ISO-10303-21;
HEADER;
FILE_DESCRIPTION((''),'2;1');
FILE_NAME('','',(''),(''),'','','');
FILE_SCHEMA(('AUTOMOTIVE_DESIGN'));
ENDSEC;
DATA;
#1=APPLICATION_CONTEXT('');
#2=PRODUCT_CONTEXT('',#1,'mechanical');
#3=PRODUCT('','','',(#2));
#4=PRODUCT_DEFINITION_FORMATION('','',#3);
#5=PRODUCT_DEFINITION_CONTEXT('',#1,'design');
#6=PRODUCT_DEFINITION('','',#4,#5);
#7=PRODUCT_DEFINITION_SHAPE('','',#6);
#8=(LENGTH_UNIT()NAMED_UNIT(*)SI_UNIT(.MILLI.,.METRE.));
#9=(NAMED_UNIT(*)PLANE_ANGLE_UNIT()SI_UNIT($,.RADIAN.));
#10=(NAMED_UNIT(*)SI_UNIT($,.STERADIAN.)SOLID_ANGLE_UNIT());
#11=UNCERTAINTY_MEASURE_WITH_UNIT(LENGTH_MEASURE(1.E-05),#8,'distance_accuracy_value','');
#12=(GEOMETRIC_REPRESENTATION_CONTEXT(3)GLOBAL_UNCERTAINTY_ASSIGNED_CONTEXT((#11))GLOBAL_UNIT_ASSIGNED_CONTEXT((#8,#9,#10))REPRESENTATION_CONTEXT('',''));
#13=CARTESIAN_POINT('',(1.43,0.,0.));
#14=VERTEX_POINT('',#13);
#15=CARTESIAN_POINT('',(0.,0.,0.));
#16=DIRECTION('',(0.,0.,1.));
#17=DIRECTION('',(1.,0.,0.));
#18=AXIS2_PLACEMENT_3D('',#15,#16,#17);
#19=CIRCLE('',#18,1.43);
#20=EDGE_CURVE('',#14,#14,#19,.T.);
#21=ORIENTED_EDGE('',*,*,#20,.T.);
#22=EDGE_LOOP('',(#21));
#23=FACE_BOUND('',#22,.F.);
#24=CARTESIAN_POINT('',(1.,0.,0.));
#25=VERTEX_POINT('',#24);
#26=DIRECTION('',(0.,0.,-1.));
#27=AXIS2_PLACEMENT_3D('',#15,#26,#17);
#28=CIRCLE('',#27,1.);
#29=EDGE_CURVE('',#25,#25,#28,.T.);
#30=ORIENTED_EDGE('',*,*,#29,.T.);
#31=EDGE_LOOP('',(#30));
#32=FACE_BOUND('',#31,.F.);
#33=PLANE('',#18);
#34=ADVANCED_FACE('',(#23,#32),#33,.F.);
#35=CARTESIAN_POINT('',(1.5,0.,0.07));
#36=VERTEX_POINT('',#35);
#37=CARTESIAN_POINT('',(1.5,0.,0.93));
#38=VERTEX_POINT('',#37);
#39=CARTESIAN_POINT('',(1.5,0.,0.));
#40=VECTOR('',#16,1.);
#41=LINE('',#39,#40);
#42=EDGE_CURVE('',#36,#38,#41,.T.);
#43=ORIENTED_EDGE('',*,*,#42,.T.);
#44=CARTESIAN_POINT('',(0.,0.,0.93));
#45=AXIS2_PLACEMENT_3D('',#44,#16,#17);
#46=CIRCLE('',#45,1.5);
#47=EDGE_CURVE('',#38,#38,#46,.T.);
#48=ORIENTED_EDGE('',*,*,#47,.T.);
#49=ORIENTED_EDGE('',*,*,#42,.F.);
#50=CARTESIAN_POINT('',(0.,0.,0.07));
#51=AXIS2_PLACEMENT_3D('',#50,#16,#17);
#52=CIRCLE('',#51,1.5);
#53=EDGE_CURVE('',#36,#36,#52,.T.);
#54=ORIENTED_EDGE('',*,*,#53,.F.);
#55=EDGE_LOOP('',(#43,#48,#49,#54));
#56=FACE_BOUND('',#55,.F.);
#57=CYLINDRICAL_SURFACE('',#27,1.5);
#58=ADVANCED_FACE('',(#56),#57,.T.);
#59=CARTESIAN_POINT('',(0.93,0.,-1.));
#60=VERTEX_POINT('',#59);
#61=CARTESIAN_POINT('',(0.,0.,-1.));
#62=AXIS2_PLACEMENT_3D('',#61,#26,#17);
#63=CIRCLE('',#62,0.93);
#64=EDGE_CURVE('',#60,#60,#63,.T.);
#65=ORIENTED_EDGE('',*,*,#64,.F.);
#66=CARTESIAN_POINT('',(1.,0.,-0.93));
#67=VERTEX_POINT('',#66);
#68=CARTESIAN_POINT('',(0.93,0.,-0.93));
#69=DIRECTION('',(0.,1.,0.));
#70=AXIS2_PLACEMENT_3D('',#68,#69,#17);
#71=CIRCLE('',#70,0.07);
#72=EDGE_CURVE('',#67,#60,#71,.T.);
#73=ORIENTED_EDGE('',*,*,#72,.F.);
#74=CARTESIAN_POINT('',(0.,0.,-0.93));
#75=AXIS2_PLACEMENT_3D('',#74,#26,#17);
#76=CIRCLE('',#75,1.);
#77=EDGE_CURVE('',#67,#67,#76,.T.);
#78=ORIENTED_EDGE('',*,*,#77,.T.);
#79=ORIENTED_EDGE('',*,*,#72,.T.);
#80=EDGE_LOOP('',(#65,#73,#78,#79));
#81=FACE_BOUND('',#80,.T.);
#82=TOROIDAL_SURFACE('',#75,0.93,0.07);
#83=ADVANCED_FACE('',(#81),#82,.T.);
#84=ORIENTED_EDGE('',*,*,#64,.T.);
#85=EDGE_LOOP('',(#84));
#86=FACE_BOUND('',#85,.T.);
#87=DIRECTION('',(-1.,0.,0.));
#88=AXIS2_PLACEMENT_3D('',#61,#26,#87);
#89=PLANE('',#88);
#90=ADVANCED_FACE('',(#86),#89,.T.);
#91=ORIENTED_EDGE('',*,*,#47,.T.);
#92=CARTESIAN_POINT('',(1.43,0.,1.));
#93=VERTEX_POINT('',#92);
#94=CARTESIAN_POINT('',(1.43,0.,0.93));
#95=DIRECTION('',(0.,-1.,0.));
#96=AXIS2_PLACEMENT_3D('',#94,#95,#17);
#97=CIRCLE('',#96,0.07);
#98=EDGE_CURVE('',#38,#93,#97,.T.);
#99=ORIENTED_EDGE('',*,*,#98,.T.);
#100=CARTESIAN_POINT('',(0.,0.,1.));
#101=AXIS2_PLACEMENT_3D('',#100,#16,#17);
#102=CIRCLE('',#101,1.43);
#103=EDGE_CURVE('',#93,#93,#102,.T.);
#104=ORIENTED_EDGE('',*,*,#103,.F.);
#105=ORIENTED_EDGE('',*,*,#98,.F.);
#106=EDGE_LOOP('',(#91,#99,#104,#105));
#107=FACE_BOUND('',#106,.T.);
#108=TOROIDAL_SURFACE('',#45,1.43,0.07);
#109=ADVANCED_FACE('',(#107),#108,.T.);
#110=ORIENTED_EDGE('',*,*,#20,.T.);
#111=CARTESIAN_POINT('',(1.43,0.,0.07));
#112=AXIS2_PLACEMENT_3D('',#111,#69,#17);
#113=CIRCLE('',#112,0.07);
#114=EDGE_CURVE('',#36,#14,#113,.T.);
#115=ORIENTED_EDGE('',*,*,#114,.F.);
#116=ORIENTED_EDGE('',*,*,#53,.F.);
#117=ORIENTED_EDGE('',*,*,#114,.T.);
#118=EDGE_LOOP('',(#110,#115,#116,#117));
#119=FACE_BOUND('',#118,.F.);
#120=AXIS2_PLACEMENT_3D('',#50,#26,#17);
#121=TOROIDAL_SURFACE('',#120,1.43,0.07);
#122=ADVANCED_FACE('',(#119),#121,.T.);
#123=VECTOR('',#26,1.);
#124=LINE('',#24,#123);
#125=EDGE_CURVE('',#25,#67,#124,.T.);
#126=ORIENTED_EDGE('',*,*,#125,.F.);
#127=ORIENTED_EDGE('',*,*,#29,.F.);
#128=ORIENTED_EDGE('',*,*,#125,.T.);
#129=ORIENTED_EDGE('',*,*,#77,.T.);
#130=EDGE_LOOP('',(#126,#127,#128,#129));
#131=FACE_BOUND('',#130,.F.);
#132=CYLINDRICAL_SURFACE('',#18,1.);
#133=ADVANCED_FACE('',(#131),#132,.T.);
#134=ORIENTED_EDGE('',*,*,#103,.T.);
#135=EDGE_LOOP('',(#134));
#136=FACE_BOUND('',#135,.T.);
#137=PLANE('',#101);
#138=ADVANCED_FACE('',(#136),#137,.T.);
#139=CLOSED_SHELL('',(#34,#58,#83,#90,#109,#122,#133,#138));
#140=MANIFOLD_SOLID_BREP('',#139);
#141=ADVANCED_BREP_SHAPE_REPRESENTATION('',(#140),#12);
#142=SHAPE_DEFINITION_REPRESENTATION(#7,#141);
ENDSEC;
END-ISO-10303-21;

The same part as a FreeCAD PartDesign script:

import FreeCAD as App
import Part
import Sketcher


def edges_at(feature, points):
    """Names of the edges that pass closest to the given points."""
    edges = feature.Shape.Edges
    near = lambda p: min(range(len(edges)), key=lambda i: edges[i].distToShape(Part.Vertex(*p))[0])
    return sorted({f"Edge{near(p) + 1}" for p in points})

doc = App.newDocument("Part")
body = doc.addObject("PartDesign::Body", "Body")

sketch1 = body.newObject("Sketcher::SketchObject", "Sketch")
sketch1.AttachmentSupport = (doc.getObject("XY_Plane"), [""])
sketch1.MapMode = "FlatFace"
sketch1.addGeometry(Part.Circle(App.Vector(0, 0, 0), App.Vector(0, 0, 1), 1.5), False)
sketch1.addConstraint([
    Sketcher.Constraint("Coincident", 0, 3, -1, 1),
    Sketcher.Constraint("Diameter", 0, 3.0),
])
pad1 = body.newObject("PartDesign::Pad", "Pad")
pad1.Profile = sketch1
pad1.Length = 1

sketch2 = body.newObject("Sketcher::SketchObject", "Sketch001")
sketch2.AttachmentSupport = (doc.getObject("XY_Plane"), [""])
sketch2.MapMode = "FlatFace"
sketch2.addGeometry(Part.Circle(App.Vector(0, 0, 0), App.Vector(0, 0, 1), 1), False)
sketch2.addConstraint([
    Sketcher.Constraint("Coincident", 0, 3, -1, 1),
    Sketcher.Constraint("Diameter", 0, 2.0),
])
pad2 = body.newObject("PartDesign::Pad", "Pad001")
pad2.Profile = sketch2
pad2.Length = 1
pad2.Reversed = True
doc.recompute()

fillet = body.newObject("PartDesign::Fillet", "Fillet")
fillet.Base = (pad2, edges_at(pad2, [(-1.5, 0, 1), (-1.5, 0, 0), (-1, 0, -1)]))
fillet.Radius = 0.07

doc.recompute()
